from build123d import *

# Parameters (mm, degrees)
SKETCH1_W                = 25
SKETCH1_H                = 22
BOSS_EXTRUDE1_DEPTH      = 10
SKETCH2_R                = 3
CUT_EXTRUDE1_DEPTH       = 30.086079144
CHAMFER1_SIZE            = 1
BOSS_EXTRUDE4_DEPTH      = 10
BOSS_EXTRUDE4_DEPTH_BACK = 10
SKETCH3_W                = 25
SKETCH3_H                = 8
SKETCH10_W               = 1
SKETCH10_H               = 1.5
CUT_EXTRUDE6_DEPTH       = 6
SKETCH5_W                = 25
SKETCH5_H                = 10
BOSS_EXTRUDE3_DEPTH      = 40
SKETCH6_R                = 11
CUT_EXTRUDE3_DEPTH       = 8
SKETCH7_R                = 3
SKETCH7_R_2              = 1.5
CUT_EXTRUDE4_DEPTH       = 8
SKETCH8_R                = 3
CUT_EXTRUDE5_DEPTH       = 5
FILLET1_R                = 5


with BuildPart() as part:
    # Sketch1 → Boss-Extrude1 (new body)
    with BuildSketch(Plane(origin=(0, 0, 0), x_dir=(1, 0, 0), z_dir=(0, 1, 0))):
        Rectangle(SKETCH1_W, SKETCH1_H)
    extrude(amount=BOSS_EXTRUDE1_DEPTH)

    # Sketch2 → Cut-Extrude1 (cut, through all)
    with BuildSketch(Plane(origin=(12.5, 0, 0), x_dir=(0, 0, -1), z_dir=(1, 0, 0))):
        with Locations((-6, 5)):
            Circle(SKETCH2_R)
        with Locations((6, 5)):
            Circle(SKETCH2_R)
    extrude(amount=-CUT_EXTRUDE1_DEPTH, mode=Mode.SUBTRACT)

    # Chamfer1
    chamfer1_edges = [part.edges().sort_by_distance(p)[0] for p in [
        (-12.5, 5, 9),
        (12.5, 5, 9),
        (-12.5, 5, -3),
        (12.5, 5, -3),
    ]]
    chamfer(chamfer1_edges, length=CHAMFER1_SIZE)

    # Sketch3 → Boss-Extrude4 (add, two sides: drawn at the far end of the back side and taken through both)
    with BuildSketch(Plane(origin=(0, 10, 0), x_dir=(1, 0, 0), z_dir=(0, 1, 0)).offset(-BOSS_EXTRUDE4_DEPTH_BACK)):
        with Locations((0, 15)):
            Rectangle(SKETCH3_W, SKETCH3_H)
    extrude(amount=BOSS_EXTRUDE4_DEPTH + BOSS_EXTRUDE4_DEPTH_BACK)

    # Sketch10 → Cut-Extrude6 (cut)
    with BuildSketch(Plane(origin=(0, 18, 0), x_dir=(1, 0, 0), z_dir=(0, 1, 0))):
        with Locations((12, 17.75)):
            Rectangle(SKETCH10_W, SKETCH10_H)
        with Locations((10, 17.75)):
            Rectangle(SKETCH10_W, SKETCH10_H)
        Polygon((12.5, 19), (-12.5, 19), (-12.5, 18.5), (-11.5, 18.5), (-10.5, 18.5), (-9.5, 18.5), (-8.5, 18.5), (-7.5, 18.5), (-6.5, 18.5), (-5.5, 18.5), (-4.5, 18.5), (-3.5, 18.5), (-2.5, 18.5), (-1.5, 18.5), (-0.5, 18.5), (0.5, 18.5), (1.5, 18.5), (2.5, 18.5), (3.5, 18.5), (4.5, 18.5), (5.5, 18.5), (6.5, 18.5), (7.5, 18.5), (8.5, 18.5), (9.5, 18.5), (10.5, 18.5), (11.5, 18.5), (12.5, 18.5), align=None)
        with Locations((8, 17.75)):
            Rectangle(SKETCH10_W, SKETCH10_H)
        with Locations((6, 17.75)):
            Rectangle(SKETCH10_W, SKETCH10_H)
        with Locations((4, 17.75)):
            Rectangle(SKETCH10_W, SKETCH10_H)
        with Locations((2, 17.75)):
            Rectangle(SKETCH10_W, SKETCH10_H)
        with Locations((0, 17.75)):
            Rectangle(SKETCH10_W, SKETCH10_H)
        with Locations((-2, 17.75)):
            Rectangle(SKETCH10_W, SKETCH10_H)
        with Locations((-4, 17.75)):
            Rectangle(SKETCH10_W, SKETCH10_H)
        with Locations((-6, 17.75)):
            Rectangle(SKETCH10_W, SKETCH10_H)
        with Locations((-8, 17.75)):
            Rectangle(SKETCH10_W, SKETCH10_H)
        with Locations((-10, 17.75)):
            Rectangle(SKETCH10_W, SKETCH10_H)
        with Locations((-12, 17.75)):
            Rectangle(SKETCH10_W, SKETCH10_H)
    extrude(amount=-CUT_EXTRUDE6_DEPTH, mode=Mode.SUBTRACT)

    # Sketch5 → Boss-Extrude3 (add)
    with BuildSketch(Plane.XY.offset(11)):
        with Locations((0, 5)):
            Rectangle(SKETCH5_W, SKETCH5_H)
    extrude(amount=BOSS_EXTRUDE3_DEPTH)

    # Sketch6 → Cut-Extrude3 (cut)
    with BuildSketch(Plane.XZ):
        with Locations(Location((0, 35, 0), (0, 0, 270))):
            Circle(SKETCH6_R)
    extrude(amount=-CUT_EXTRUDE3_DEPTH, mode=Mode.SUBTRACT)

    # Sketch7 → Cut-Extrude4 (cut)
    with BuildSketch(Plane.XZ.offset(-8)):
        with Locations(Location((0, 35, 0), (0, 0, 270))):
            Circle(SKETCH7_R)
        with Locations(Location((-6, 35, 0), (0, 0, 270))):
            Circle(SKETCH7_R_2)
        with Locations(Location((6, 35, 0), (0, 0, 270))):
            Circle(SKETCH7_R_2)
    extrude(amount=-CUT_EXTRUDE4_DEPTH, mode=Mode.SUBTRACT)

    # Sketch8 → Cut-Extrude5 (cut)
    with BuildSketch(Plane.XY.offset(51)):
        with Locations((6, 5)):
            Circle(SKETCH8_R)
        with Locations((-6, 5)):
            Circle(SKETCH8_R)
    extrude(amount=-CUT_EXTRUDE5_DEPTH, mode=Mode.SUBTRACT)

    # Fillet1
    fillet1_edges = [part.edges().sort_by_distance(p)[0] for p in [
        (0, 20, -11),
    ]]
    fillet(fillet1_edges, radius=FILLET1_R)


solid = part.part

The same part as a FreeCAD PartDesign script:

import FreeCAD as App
import Part
import Sketcher


def edges_at(feature, points):
    """Names of the edges that pass closest to the given points."""
    edges = feature.Shape.Edges
    near = lambda p: min(range(len(edges)), key=lambda i: edges[i].distToShape(Part.Vertex(*p))[0])
    return sorted({f"Edge{near(p) + 1}" for p in points})

doc = App.newDocument("Part")
body = doc.addObject("PartDesign::Body", "Body")

sketch1 = doc.addObject("Sketcher::SketchObject", "Sketch")
body.addObject(sketch1)
sketch1.AttachmentSupport = (doc.XZ_Plane, [""])
sketch1.MapMode = "FlatFace"
sketch1.addGeometry([
    Part.LineSegment(App.Vector(-12.5, -11, 0), App.Vector(-12.5, 11, 0)),
    Part.LineSegment(App.Vector(-12.5, 11, 0), App.Vector(12.5, 11, 0)),
    Part.LineSegment(App.Vector(12.5, 11, 0), App.Vector(12.5, -11, 0)),
    Part.LineSegment(App.Vector(12.5, -11, 0), App.Vector(-12.5, -11, 0)),
], False)
sketch1.addConstraint([
    Sketcher.Constraint("Coincident", 0, 2, 1, 1),
    Sketcher.Constraint("Coincident", 1, 2, 2, 1),
    Sketcher.Constraint("Coincident", 2, 2, 3, 1),
    Sketcher.Constraint("Coincident", 3, 2, 0, 1),
    Sketcher.Constraint("Vertical", 0),
    Sketcher.Constraint("Horizontal", 1),
    Sketcher.Constraint("Vertical", 2),
    Sketcher.Constraint("Horizontal", 3),
    Sketcher.Constraint("Symmetric", 0, 2, 2, 2, -1, 1),
    Sketcher.Constraint("DistanceX", 1, 1, 1, 2, 25.0),
    Sketcher.Constraint("DistanceY", 0, 1, 0, 2, 22.0),
])
pad1 = doc.addObject("PartDesign::Pad", "Pad")
body.addObject(pad1)
pad1.Profile = sketch1
pad1.Length = 10
pad1.Reversed = True

sketch2 = doc.addObject("Sketcher::SketchObject", "Sketch001")
body.addObject(sketch2)
sketch2.AttachmentSupport = (doc.YZ_Plane, [""])
sketch2.MapMode = "FlatFace"
sketch2.AttachmentOffset = App.Placement(App.Vector(0, 0, 12.5), App.Rotation())
sketch2.addGeometry([
    Part.Circle(App.Vector(5, 6, 0), App.Vector(0, 0, 1), 3),
    Part.Circle(App.Vector(5, -6, 0), App.Vector(0, 0, 1), 3),
], False)
sketch2.addConstraint([
    Sketcher.Constraint("Equal", 0, 1),
    Sketcher.Constraint("Symmetric", 0, 3, 1, 3, -1),
    Sketcher.Constraint("Diameter", 0, 6.0),
    Sketcher.Constraint("DistanceX", -1, 1, 0, 3, 5.0),
    Sketcher.Constraint("DistanceY", -1, 1, 0, 3, 6.0),
])
pocket1 = doc.addObject("PartDesign::Pocket", "Pocket")
body.addObject(pocket1)
pocket1.Profile = sketch2
pocket1.Type = "ThroughAll"
doc.recompute()

chamfer = doc.addObject("PartDesign::Chamfer", "Chamfer")
body.addObject(chamfer)
chamfer.Base = (pocket1, edges_at(pocket1, [
    (-12.5, 5, 9),
    (12.5, 5, 9),
    (-12.5, 5, -3),
    (12.5, 5, -3),
]))
chamfer.Size = 1

sketch3 = doc.addObject("Sketcher::SketchObject", "Sketch002")
body.addObject(sketch3)
sketch3.AttachmentSupport = (doc.XZ_Plane, [""])
sketch3.MapMode = "FlatFace"
sketch3.AttachmentOffset = App.Placement(App.Vector(0, 0, -10), App.Rotation())
sketch3.addGeometry([
    Part.LineSegment(App.Vector(-12.5, -19, 0), App.Vector(-12.5, -11, 0)),
    Part.LineSegment(App.Vector(-12.5, -11, 0), App.Vector(12.5, -11, 0)),
    Part.LineSegment(App.Vector(12.5, -11, 0), App.Vector(12.5, -19, 0)),
    Part.LineSegment(App.Vector(12.5, -19, 0), App.Vector(-12.5, -19, 0)),
], False)
sketch3.addConstraint([
    Sketcher.Constraint("Coincident", 0, 2, 1, 1),
    Sketcher.Constraint("Coincident", 1, 2, 2, 1),
    Sketcher.Constraint("Coincident", 2, 2, 3, 1),
    Sketcher.Constraint("Coincident", 3, 2, 0, 1),
    Sketcher.Constraint("Vertical", 0),
    Sketcher.Constraint("Horizontal", 1),
    Sketcher.Constraint("Vertical", 2),
    Sketcher.Constraint("Horizontal", 3),
    Sketcher.Constraint("DistanceX", 1, 1, 1, 2, 25.0),
    Sketcher.Constraint("DistanceY", 0, 1, 0, 2, 8.0),
    Sketcher.Constraint("DistanceY", 0, 2, -1, 1, 11.0),
    Sketcher.Constraint("DistanceX", 0, 2, -1, 1, 12.5),
])
pad2 = doc.addObject("PartDesign::Pad", "Pad001")
body.addObject(pad2)
pad2.Profile = sketch3
pad2.Type = "TwoLengths"
pad2.Length = 10
pad2.Length2 = 10
pad2.Reversed = True

sketch4 = doc.addObject("Sketcher::SketchObject", "Sketch003")
body.addObject(sketch4)
sketch4.AttachmentSupport = (doc.XZ_Plane, [""])
sketch4.MapMode = "FlatFace"
sketch4.AttachmentOffset = App.Placement(App.Vector(0, 0, -18), App.Rotation())
sketch4.addGeometry([
    Part.LineSegment(App.Vector(11.5, -18.5, 0), App.Vector(11.5, -17, 0)),
    Part.LineSegment(App.Vector(11.5, -17, 0), App.Vector(12.5, -17, 0)),
    Part.LineSegment(App.Vector(12.5, -17, 0), App.Vector(12.5, -19, 0)),
    Part.LineSegment(App.Vector(12.5, -19, 0), App.Vector(-12.5, -19, 0)),
    Part.LineSegment(App.Vector(-12.5, -19, 0), App.Vector(-12.5, -17, 0)),
    Part.LineSegment(App.Vector(-12.5, -17, 0), App.Vector(-11.5, -17, 0)),
    Part.LineSegment(App.Vector(-11.5, -17, 0), App.Vector(-11.5, -18.5, 0)),
    Part.LineSegment(App.Vector(-11.5, -18.5, 0), App.Vector(-10.5, -18.5, 0)),
    Part.LineSegment(App.Vector(-10.5, -18.5, 0), App.Vector(-10.5, -17, 0)),
    Part.LineSegment(App.Vector(-10.5, -17, 0), App.Vector(-9.5, -17, 0)),
    Part.LineSegment(App.Vector(-9.5, -17, 0), App.Vector(-9.5, -18.5, 0)),
    Part.LineSegment(App.Vector(-9.5, -18.5, 0), App.Vector(-8.5, -18.5, 0)),
    Part.LineSegment(App.Vector(-8.5, -18.5, 0), App.Vector(-8.5, -17, 0)),
    Part.LineSegment(App.Vector(-8.5, -17, 0), App.Vector(-7.5, -17, 0)),
    Part.LineSegment(App.Vector(-7.5, -17, 0), App.Vector(-7.5, -18.5, 0)),
    Part.LineSegment(App.Vector(-7.5, -18.5, 0), App.Vector(-6.5, -18.5, 0)),
    Part.LineSegment(App.Vector(-6.5, -18.5, 0), App.Vector(-6.5, -17, 0)),
    Part.LineSegment(App.Vector(-6.5, -17, 0), App.Vector(-5.5, -17, 0)),
    Part.LineSegment(App.Vector(-5.5, -17, 0), App.Vector(-5.5, -18.5, 0)),
    Part.LineSegment(App.Vector(-5.5, -18.5, 0), App.Vector(-4.5, -18.5, 0)),
    Part.LineSegment(App.Vector(-4.5, -18.5, 0), App.Vector(-4.5, -17, 0)),
    Part.LineSegment(App.Vector(-4.5, -17, 0), App.Vector(-3.5, -17, 0)),
    Part.LineSegment(App.Vector(-3.5, -17, 0), App.Vector(-3.5, -18.5, 0)),
    Part.LineSegment(App.Vector(-3.5, -18.5, 0), App.Vector(-2.5, -18.5, 0)),
    Part.LineSegment(App.Vector(-2.5, -18.5, 0), App.Vector(-2.5, -17, 0)),
    Part.LineSegment(App.Vector(-2.5, -17, 0), App.Vector(-1.5, -17, 0)),
    Part.LineSegment(App.Vector(-1.5, -17, 0), App.Vector(-1.5, -18.5, 0)),
    Part.LineSegment(App.Vector(-1.5, -18.5, 0), App.Vector(-0.5, -18.5, 0)),
    Part.LineSegment(App.Vector(-0.5, -18.5, 0), App.Vector(-0.5, -17, 0)),
    Part.LineSegment(App.Vector(-0.5, -17, 0), App.Vector(0.5, -17, 0)),
    Part.LineSegment(App.Vector(0.5, -17, 0), App.Vector(0.5, -18.5, 0)),
    Part.LineSegment(App.Vector(0.5, -18.5, 0), App.Vector(1.5, -18.5, 0)),
    Part.LineSegment(App.Vector(1.5, -18.5, 0), App.Vector(1.5, -17, 0)),
    Part.LineSegment(App.Vector(1.5, -17, 0), App.Vector(2.5, -17, 0)),
    Part.LineSegment(App.Vector(2.5, -17, 0), App.Vector(2.5, -18.5, 0)),
    Part.LineSegment(App.Vector(2.5, -18.5, 0), App.Vector(3.5, -18.5, 0)),
    Part.LineSegment(App.Vector(3.5, -18.5, 0), App.Vector(3.5, -17, 0)),
    Part.LineSegment(App.Vector(3.5, -17, 0), App.Vector(4.5, -17, 0)),
    Part.LineSegment(App.Vector(4.5, -17, 0), App.Vector(4.5, -18.5, 0)),
    Part.LineSegment(App.Vector(4.5, -18.5, 0), App.Vector(5.5, -18.5, 0)),
    Part.LineSegment(App.Vector(5.5, -18.5, 0), App.Vector(5.5, -17, 0)),
    Part.LineSegment(App.Vector(5.5, -17, 0), App.Vector(6.5, -17, 0)),
    Part.LineSegment(App.Vector(6.5, -17, 0), App.Vector(6.5, -18.5, 0)),
    Part.LineSegment(App.Vector(6.5, -18.5, 0), App.Vector(7.5, -18.5, 0)),
    Part.LineSegment(App.Vector(7.5, -18.5, 0), App.Vector(7.5, -17, 0)),
    Part.LineSegment(App.Vector(7.5, -17, 0), App.Vector(8.5, -17, 0)),
    Part.LineSegment(App.Vector(8.5, -17, 0), App.Vector(8.5, -18.5, 0)),
    Part.LineSegment(App.Vector(8.5, -18.5, 0), App.Vector(9.5, -18.5, 0)),
    Part.LineSegment(App.Vector(9.5, -18.5, 0), App.Vector(9.5, -17, 0)),
    Part.LineSegment(App.Vector(9.5, -17, 0), App.Vector(10.5, -17, 0)),
    Part.LineSegment(App.Vector(10.5, -17, 0), App.Vector(10.5, -18.5, 0)),
    Part.LineSegment(App.Vector(10.5, -18.5, 0), App.Vector(11.5, -18.5, 0)),
], False)
sketch4.addConstraint([
    Sketcher.Constraint("Coincident", 0, 2, 1, 1),
    Sketcher.Constraint("Coincident", 1, 2, 2, 1),
    Sketcher.Constraint("Coincident", 2, 2, 3, 1),
    Sketcher.Constraint("Coincident", 3, 2, 4, 1),
    Sketcher.Constraint("Coincident", 4, 2, 5, 1),
    Sketcher.Constraint("Coincident", 5, 2, 6, 1),
    Sketcher.Constraint("Coincident", 6, 2, 7, 1),
    Sketcher.Constraint("Coincident", 7, 2, 8, 1),
    Sketcher.Constraint("Coincident", 8, 2, 9, 1),
    Sketcher.Constraint("Coincident", 9, 2, 10, 1),
    Sketcher.Constraint("Coincident", 10, 2, 11, 1),
    Sketcher.Constraint("Coincident", 11, 2, 12, 1),
    Sketcher.Constraint("Coincident", 12, 2, 13, 1),
    Sketcher.Constraint("Coincident", 13, 2, 14, 1),
    Sketcher.Constraint("Coincident", 14, 2, 15, 1),
    Sketcher.Constraint("Coincident", 15, 2, 16, 1),
    Sketcher.Constraint("Coincident", 16, 2, 17, 1),
    Sketcher.Constraint("Coincident", 17, 2, 18, 1),
    Sketcher.Constraint("Coincident", 18, 2, 19, 1),
    Sketcher.Constraint("Coincident", 19, 2, 20, 1),
    Sketcher.Constraint("Coincident", 20, 2, 21, 1),
    Sketcher.Constraint("Coincident", 21, 2, 22, 1),
    Sketcher.Constraint("Coincident", 22, 2, 23, 1),
    Sketcher.Constraint("Coincident", 23, 2, 24, 1),
    Sketcher.Constraint("Coincident", 24, 2, 25, 1),
    Sketcher.Constraint("Coincident", 25, 2, 26, 1),
    Sketcher.Constraint("Coincident", 26, 2, 27, 1),
    Sketcher.Constraint("Coincident", 27, 2, 28, 1),
    Sketcher.Constraint("Coincident", 28, 2, 29, 1),
    Sketcher.Constraint("Coincident", 29, 2, 30, 1),
    Sketcher.Constraint("Coincident", 30, 2, 31, 1),
    Sketcher.Constraint("Coincident", 31, 2, 32, 1),
    Sketcher.Constraint("Coincident", 32, 2, 33, 1),
    Sketcher.Constraint("Coincident", 33, 2, 34, 1),
    Sketcher.Constraint("Coincident", 34, 2, 35, 1),
    Sketcher.Constraint("Coincident", 35, 2, 36, 1),
    Sketcher.Constraint("Coincident", 36, 2, 37, 1),
    Sketcher.Constraint("Coincident", 37, 2, 38, 1),
    Sketcher.Constraint("Coincident", 38, 2, 39, 1),
    Sketcher.Constraint("Coincident", 39, 2, 40, 1),
    Sketcher.Constraint("Coincident", 40, 2, 41, 1),
    Sketcher.Constraint("Coincident", 41, 2, 42, 1),
    Sketcher.Constraint("Coincident", 42, 2, 43, 1),
    Sketcher.Constraint("Coincident", 43, 2, 44, 1),
    Sketcher.Constraint("Coincident", 44, 2, 45, 1),
    Sketcher.Constraint("Coincident", 45, 2, 46, 1),
    Sketcher.Constraint("Coincident", 46, 2, 47, 1),
    Sketcher.Constraint("Coincident", 47, 2, 48, 1),
    Sketcher.Constraint("Coincident", 48, 2, 49, 1),
    Sketcher.Constraint("Coincident", 49, 2, 50, 1),
    Sketcher.Constraint("Coincident", 50, 2, 51, 1),
    Sketcher.Constraint("Coincident", 51, 2, 0, 1),
    Sketcher.Constraint("Vertical", 0),
    Sketcher.Constraint("Horizontal", 1),
    Sketcher.Constraint("Vertical", 2),
    Sketcher.Constraint("Horizontal", 3),
    Sketcher.Constraint("Vertical", 4),
    Sketcher.Constraint("Horizontal", 5),
    Sketcher.Constraint("Vertical", 6),
    Sketcher.Constraint("Horizontal", 7),
    Sketcher.Constraint("Vertical", 8),
    Sketcher.Constraint("Horizontal", 9),
    Sketcher.Constraint("Vertical", 10),
    Sketcher.Constraint("Horizontal", 11),
    Sketcher.Constraint("Vertical", 12),
    Sketcher.Constraint("Horizontal", 13),
    Sketcher.Constraint("Vertical", 14),
    Sketcher.Constraint("Horizontal", 15),
    Sketcher.Constraint("Vertical", 16),
    Sketcher.Constraint("Horizontal", 17),
    Sketcher.Constraint("Vertical", 18),
    Sketcher.Constraint("Horizontal", 19),
    Sketcher.Constraint("Vertical", 20),
    Sketcher.Constraint("Horizontal", 21),
    Sketcher.Constraint("Vertical", 22),
    Sketcher.Constraint("Horizontal", 23),
    Sketcher.Constraint("Vertical", 24),
    Sketcher.Constraint("Horizontal", 25),
    Sketcher.Constraint("Vertical", 26),
    Sketcher.Constraint("Horizontal", 27),
    Sketcher.Constraint("Vertical", 28),
    Sketcher.Constraint("Horizontal", 29),
    Sketcher.Constraint("Vertical", 30),
    Sketcher.Constraint("Horizontal", 31),
    Sketcher.Constraint("Vertical", 32),
    Sketcher.Constraint("Horizontal", 33),
    Sketcher.Constraint("Vertical", 34),
    Sketcher.Constraint("Horizontal", 35),
    Sketcher.Constraint("Vertical", 36),
    Sketcher.Constraint("Horizontal", 37),
    Sketcher.Constraint("Vertical", 38),
    Sketcher.Constraint("Horizontal", 39),
    Sketcher.Constraint("Vertical", 40),
    Sketcher.Constraint("Horizontal", 41),
    Sketcher.Constraint("Vertical", 42),
    Sketcher.Constraint("Horizontal", 43),
    Sketcher.Constraint("Vertical", 44),
    Sketcher.Constraint("Horizontal", 45),
    Sketcher.Constraint("Vertical", 46),
    Sketcher.Constraint("Horizontal", 47),
    Sketcher.Constraint("Vertical", 48),
    Sketcher.Constraint("Horizontal", 49),
    Sketcher.Constraint("Vertical", 50),
    Sketcher.Constraint("Horizontal", 51),
    Sketcher.Constraint("Symmetric", 1, 2, 4, 2, -2),
    Sketcher.Constraint("Symmetric", 27, 2, 30, 2, -2),
    Sketcher.Constraint("Symmetric", 25, 2, 32, 2, -2),
    Sketcher.Constraint("Symmetric", 23, 2, 34, 2, -2),
    Sketcher.Constraint("Symmetric", 21, 2, 36, 2, -2),
    Sketcher.Constraint("Symmetric", 19, 2, 38, 2, -2),
    Sketcher.Constraint("Symmetric", 17, 2, 40, 2, -2),
    Sketcher.Constraint("Symmetric", 15, 2, 42, 2, -2),
    Sketcher.Constraint("Symmetric", 13, 2, 44, 2, -2),
    Sketcher.Constraint("Symmetric", 11, 2, 46, 2, -2),
    Sketcher.Constraint("Symmetric", 9, 2, 48, 2, -2),
    Sketcher.Constraint("Symmetric", 7, 2, 50, 2, -2),
    Sketcher.Constraint("Horizontal", 5, 2, 8, 2),
    Sketcher.Constraint("Horizontal", 7, 2, 10, 2),
    Sketcher.Constraint("Horizontal", 9, 2, 12, 2),
    Sketcher.Constraint("Horizontal", 11, 2, 14, 2),
    Sketcher.Constraint("Horizontal", 13, 2, 16, 2),
    Sketcher.Constraint("Horizontal", 15, 2, 18, 2),
    Sketcher.Constraint("Horizontal", 17, 2, 20, 2),
    Sketcher.Constraint("Horizontal", 19, 2, 22, 2),
    Sketcher.Constraint("Horizontal", 21, 2, 24, 2),
    Sketcher.Constraint("Horizontal", 23, 2, 26, 2),
    Sketcher.Constraint("Horizontal", 25, 2, 28, 2),
    Sketcher.Constraint("Equal", 1, 5),
    Sketcher.Constraint("Equal", 5, 7),
    Sketcher.Constraint("Equal", 7, 9),
    Sketcher.Constraint("Equal", 9, 11),
    Sketcher.Constraint("Equal", 11, 13),
    Sketcher.Constraint("Equal", 13, 15),
    Sketcher.Constraint("Equal", 15, 17),
    Sketcher.Constraint("Equal", 17, 19),
    Sketcher.Constraint("Equal", 19, 21),
    Sketcher.Constraint("Equal", 21, 23),
    Sketcher.Constraint("Equal", 23, 25),
    Sketcher.Constraint("Equal", 25, 27),
    Sketcher.Constraint("Equal", 27, 29),
    Sketcher.Constraint("DistanceX", 1, 1, 1, 2, 1.0),
    Sketcher.Constraint("DistanceY", 2, 2, 2, 1, 2.0),
    Sketcher.Constraint("DistanceY", 0, 1, 0, 2, 1.5),
    Sketcher.Constraint("DistanceY", 0, 2, -1, 1, 17.0),
])
pocket2 = doc.addObject("PartDesign::Pocket", "Pocket001")
body.addObject(pocket2)
pocket2.Profile = sketch4
pocket2.Length = 6
pocket2.Reversed = True

sketch5 = doc.addObject("Sketcher::SketchObject", "Sketch004")
body.addObject(sketch5)
sketch5.AttachmentSupport = (doc.XY_Plane, [""])
sketch5.MapMode = "FlatFace"
sketch5.AttachmentOffset = App.Placement(App.Vector(0, 0, 11), App.Rotation())
sketch5.addGeometry([
    Part.LineSegment(App.Vector(-12.5, 10, 0), App.Vector(-12.5, 0, 0)),
    Part.LineSegment(App.Vector(-12.5, 0, 0), App.Vector(12.5, 0, 0)),
    Part.LineSegment(App.Vector(12.5, 0, 0), App.Vector(12.5, 10, 0)),
    Part.LineSegment(App.Vector(12.5, 10, 0), App.Vector(-12.5, 10, 0)),
], False)
sketch5.addConstraint([
    Sketcher.Constraint("Coincident", 0, 2, 1, 1),
    Sketcher.Constraint("Coincident", 1, 2, 2, 1),
    Sketcher.Constraint("Coincident", 2, 2, 3, 1),
    Sketcher.Constraint("Coincident", 3, 2, 0, 1),
    Sketcher.Constraint("Vertical", 0),
    Sketcher.Constraint("Horizontal", 1),
    Sketcher.Constraint("Vertical", 2),
    Sketcher.Constraint("Horizontal", 3),
    Sketcher.Constraint("Symmetric", 0, 2, 1, 2, -1, 1),
    Sketcher.Constraint("DistanceX", 1, 1, 1, 2, 25.0),
    Sketcher.Constraint("DistanceY", 0, 2, 0, 1, 10.0),
])
pad3 = doc.addObject("PartDesign::Pad", "Pad002")
body.addObject(pad3)
pad3.Profile = sketch5
pad3.Length = 40

sketch6 = doc.addObject("Sketcher::SketchObject", "Sketch005")
body.addObject(sketch6)
sketch6.AttachmentSupport = (doc.XZ_Plane, [""])
sketch6.MapMode = "FlatFace"
sketch6.addGeometry(Part.Circle(App.Vector(0, 35, 0), App.Vector(0, 0, 1), 11), False)
sketch6.addConstraint([
    Sketcher.Constraint("PointOnObject", 0, 3, -2),
    Sketcher.Constraint("Diameter", 0, 22.0),
    Sketcher.Constraint("DistanceY", -1, 1, 0, 3, 35.0),
])
pocket3 = doc.addObject("PartDesign::Pocket", "Pocket002")
body.addObject(pocket3)
pocket3.Profile = sketch6
pocket3.Length = 8

sketch7 = doc.addObject("Sketcher::SketchObject", "Sketch006")
body.addObject(sketch7)
sketch7.AttachmentSupport = (doc.XZ_Plane, [""])
sketch7.MapMode = "FlatFace"
sketch7.AttachmentOffset = App.Placement(App.Vector(0, 0, -8), App.Rotation())
sketch7.addGeometry([
    Part.Circle(App.Vector(0, 35, 0), App.Vector(0, 0, 1), 3),
    Part.Circle(App.Vector(-6, 35, 0), App.Vector(0, 0, 1), 1.5),
    Part.Circle(App.Vector(6, 35, 0), App.Vector(0, 0, 1), 1.5),
], False)
sketch7.addConstraint([
    Sketcher.Constraint("Equal", 1, 2),
    Sketcher.Constraint("Symmetric", 1, 3, 2, 3, -2),
    Sketcher.Constraint("PointOnObject", 0, 3, -2),
    Sketcher.Constraint("Horizontal", 0, 3, 1, 3),
    Sketcher.Constraint("Diameter", 0, 6.0),
    Sketcher.Constraint("Diameter", 1, 3.0),
    Sketcher.Constraint("DistanceY", -1, 1, 0, 3, 35.0),
    Sketcher.Constraint("DistanceX", 1, 3, -1, 1, 6.0),
])
pocket4 = doc.addObject("PartDesign::Pocket", "Pocket003")
body.addObject(pocket4)
pocket4.Profile = sketch7
pocket4.Length = 8

sketch8 = doc.addObject("Sketcher::SketchObject", "Sketch007")
body.addObject(sketch8)
sketch8.AttachmentSupport = (doc.XY_Plane, [""])
sketch8.MapMode = "FlatFace"
sketch8.AttachmentOffset = App.Placement(App.Vector(0, 0, 51), App.Rotation())
sketch8.addGeometry([
    Part.Circle(App.Vector(6, 5, 0), App.Vector(0, 0, 1), 3),
    Part.Circle(App.Vector(-6, 5, 0), App.Vector(0, 0, 1), 3),
], False)
sketch8.addConstraint([
    Sketcher.Constraint("Equal", 0, 1),
    Sketcher.Constraint("Symmetric", 0, 3, 1, 3, -2),
    Sketcher.Constraint("Diameter", 0, 6.0),
    Sketcher.Constraint("DistanceX", -1, 1, 0, 3, 6.0),
    Sketcher.Constraint("DistanceY", -1, 1, 0, 3, 5.0),
])
pocket5 = doc.addObject("PartDesign::Pocket", "Pocket004")
body.addObject(pocket5)
pocket5.Profile = sketch8
pocket5.Length = 5
doc.recompute()

fillet = doc.addObject("PartDesign::Fillet", "Fillet")
body.addObject(fillet)
fillet.Base = (pocket5, edges_at(pocket5, [(0, 20, -11)]))
fillet.Radius = 5

doc.recompute()
